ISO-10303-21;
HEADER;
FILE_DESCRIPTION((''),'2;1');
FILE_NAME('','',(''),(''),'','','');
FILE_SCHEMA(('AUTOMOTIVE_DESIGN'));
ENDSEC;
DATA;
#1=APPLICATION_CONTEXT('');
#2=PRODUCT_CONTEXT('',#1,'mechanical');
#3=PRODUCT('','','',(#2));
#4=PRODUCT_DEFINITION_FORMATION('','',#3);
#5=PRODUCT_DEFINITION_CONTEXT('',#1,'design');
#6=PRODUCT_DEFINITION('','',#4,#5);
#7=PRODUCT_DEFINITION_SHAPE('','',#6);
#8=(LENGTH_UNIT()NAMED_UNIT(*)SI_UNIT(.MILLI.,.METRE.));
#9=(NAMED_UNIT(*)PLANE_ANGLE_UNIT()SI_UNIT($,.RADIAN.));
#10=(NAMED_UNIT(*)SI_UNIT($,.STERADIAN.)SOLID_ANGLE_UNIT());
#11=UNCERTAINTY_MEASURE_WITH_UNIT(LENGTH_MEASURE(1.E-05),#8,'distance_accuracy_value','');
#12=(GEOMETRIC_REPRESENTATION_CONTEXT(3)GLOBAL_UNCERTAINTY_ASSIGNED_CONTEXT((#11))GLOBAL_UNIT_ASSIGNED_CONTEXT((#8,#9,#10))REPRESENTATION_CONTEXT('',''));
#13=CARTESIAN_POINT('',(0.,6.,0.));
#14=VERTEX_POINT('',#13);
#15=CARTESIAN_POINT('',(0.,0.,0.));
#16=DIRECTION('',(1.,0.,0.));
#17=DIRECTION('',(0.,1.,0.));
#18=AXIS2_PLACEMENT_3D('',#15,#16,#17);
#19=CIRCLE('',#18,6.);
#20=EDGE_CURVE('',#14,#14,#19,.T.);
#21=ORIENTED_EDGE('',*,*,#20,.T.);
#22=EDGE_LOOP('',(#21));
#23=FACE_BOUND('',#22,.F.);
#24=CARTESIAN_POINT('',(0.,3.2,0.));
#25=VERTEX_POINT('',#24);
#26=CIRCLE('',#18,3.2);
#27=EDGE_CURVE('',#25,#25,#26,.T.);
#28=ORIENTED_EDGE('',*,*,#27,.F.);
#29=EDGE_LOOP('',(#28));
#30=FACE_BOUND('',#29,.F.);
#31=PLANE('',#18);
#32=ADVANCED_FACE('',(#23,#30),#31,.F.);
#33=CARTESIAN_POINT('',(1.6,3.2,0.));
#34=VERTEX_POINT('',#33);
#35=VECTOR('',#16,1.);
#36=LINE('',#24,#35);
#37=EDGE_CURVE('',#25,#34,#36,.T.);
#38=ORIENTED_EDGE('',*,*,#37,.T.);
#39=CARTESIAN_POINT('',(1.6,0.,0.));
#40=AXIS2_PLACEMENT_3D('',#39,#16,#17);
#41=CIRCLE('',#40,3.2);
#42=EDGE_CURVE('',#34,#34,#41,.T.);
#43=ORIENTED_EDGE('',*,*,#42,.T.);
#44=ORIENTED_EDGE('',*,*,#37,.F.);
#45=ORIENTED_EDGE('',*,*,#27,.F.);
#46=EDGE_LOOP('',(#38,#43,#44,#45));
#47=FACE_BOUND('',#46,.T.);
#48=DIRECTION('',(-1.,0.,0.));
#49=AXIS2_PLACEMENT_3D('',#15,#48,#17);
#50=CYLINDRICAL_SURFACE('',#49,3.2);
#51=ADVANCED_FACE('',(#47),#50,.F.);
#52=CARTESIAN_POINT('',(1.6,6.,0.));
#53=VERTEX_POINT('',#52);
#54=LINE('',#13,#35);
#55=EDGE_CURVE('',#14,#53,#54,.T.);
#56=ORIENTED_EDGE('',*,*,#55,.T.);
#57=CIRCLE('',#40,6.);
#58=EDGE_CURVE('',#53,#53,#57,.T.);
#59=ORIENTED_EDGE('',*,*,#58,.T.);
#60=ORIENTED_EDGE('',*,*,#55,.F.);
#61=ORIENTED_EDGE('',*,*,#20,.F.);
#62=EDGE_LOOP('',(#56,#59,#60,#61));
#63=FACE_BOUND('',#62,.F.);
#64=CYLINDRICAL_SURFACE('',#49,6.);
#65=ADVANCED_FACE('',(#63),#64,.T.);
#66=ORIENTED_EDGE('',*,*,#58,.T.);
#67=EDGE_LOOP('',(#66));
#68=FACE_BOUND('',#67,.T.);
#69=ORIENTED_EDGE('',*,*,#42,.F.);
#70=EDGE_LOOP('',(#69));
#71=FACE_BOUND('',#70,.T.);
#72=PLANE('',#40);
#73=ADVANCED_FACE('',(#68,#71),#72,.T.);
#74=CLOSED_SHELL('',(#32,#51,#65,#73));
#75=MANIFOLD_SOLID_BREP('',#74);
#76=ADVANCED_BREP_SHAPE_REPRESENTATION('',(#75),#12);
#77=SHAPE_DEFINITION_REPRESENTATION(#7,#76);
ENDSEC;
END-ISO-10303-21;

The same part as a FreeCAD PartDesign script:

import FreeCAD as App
import Part
import Sketcher

V = App.Vector

doc = App.newDocument("Part")
body = doc.addObject("PartDesign::Body", "Body")

# Sketch on YZ plane
sketch1 = doc.addObject("Sketcher::SketchObject", "Sketch")
body.addObject(sketch1)
sketch1.AttachmentSupport = (doc.YZ_Plane, [""])
sketch1.MapMode = "FlatFace"
sketch1.addGeometry([
    Part.Circle(V(0, 0, 0), V(0, 0, 1), 6),
    Part.Circle(V(0, 0, 0), V(0, 0, 1), 3.2),
], False)
sketch1.addConstraint([
    Sketcher.Constraint("Coincident", 0, 3, -1, 1),
    Sketcher.Constraint("Coincident", 1, 3, -1, 1),
    Sketcher.Constraint("Diameter", 0, 12.0),
    Sketcher.Constraint("Diameter", 1, 6.4),
])
pad1 = doc.addObject("PartDesign::Pad", "Pad")
body.addObject(pad1)
pad1.Profile = sketch1
pad1.Length = 1.6

doc.recompute()
